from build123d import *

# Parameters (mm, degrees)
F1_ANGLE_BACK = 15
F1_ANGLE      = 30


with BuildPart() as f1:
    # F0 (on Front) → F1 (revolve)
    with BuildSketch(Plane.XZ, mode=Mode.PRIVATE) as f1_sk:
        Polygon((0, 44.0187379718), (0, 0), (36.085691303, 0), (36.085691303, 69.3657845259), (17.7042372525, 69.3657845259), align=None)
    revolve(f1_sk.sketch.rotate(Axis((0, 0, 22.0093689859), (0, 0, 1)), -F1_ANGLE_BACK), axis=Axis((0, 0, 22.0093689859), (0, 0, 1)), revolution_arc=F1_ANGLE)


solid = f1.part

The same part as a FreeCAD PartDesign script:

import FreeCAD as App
import Part
import Sketcher
from FreeCAD import Vector

doc = App.newDocument("Part")
params = doc.addObject("Spreadsheet::Sheet", "Params")
for row, (alias, value) in enumerate([
    ("revolution_angle", "30 deg"),
], start=1):
    params.set(f"A{row}", alias)
    params.set(f"B{row}", "=" + value)
    params.setAlias(f"B{row}", alias)

body = doc.addObject("PartDesign::Body", "Body")

sketch1 = body.newObject("Sketcher::SketchObject", "Sketch")
sketch1.Placement = App.Placement(Vector(0, 0, 0), App.Rotation(Vector(0.965925826, -0.258819045, 0), Vector(0, 0, 0.999999999), Vector(-0.258819045, -0.965925826, 0), "ZXY"))
sketch1.addGeometry([
    Part.LineSegment(Vector(0, 44.018738, 0), Vector(0, 0, 0)),
    Part.LineSegment(Vector(0, 0, 0), Vector(36.085691, 0, 0)),
    Part.LineSegment(Vector(36.085691, 0, 0), Vector(36.085691, 69.365784, 0)),
    Part.LineSegment(Vector(36.085691, 69.365784, 0), Vector(17.704237, 69.365784, 0)),
    Part.LineSegment(Vector(17.704237, 69.365784, 0), Vector(0, 44.018738, 0)),
], False)
sketch1.addConstraint([
    Sketcher.Constraint("Coincident", 0, 2, 1, 1),
    Sketcher.Constraint("Coincident", 1, 2, 2, 1),
    Sketcher.Constraint("Coincident", 2, 2, 3, 1),
    Sketcher.Constraint("Coincident", 3, 2, 4, 1),
    Sketcher.Constraint("Coincident", 4, 2, 0, 1),
    Sketcher.Constraint("Vertical", 0),
    Sketcher.Constraint("Horizontal", 1),
    Sketcher.Constraint("Vertical", 2),
    Sketcher.Constraint("Horizontal", 3),
    Sketcher.Constraint("Coincident", 0, 2, -1, 1),
    Sketcher.Constraint("DistanceX", 1, 1, 1, 2, 36.085691),
    Sketcher.Constraint("Distance", 4, 30.917839),
    Sketcher.Constraint("DistanceX", 3, 2, 3, 1, 18.381454),
    Sketcher.Constraint("DistanceY", 0, 2, 0, 1, 44.018738),
])
revolution = body.newObject("PartDesign::Revolution", "Revolution")
revolution.Profile = sketch1
revolution.ReferenceAxis = (sketch1, ["V_Axis"])
revolution.setExpression("Angle", "Params.revolution_angle")

doc.recompute()
